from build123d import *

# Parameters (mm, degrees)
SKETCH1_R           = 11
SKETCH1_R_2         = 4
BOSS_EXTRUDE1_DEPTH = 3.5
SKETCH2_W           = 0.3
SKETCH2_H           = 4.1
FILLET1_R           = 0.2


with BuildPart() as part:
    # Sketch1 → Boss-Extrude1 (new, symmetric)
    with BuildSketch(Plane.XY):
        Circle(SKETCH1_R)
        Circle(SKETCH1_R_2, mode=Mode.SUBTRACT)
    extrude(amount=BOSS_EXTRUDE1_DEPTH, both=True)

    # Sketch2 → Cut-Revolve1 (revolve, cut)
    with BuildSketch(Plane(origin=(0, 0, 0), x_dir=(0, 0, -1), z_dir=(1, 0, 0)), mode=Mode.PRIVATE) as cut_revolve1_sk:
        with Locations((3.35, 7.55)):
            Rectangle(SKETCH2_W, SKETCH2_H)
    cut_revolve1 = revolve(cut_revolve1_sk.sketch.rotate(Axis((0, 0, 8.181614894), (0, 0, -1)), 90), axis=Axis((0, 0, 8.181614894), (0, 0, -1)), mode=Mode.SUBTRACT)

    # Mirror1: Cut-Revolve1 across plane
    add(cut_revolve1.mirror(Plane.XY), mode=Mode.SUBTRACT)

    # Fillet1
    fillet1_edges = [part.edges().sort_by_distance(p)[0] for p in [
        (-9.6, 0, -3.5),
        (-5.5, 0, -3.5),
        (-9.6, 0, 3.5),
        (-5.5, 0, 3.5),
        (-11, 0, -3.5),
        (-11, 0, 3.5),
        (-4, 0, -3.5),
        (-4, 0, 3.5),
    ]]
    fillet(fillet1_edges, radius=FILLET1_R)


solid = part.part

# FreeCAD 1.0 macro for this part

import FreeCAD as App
import Part
import Sketcher
from FreeCAD import Vector


def edges_at(feature, points):
    """Names of the edges that pass closest to the given points."""
    edges = feature.Shape.Edges
    near = lambda p: min(range(len(edges)), key=lambda i: edges[i].distToShape(Part.Vertex(*p))[0])
    return sorted({f"Edge{near(p) + 1}" for p in points})

doc = App.newDocument("Part")
body = doc.addObject("PartDesign::Body", "Body")

sketch1 = body.newObject("Sketcher::SketchObject", "Sketch")
sketch1.AttachmentSupport = (doc.getObject("XY_Plane"), [""])
sketch1.MapMode = "FlatFace"
sketch1.addGeometry([
    Part.Circle(Vector(0, 0, 0), Vector(0, 0, 1), 11),
    Part.Circle(Vector(0, 0, 0), Vector(0, 0, 1), 4),
], False)
sketch1.addConstraint([
    Sketcher.Constraint("Coincident", 0, 3, -1, 1),
    Sketcher.Constraint("Coincident", 1, 3, -1, 1),
    Sketcher.Constraint("Diameter", 0, 22.0),
    Sketcher.Constraint("Diameter", 1, 8.0),
])
pad1 = body.newObject("PartDesign::Pad", "Pad")
pad1.Profile = sketch1
pad1.Length = 7
pad1.Midplane = True

sketch2 = body.newObject("Sketcher::SketchObject", "Sketch001")
sketch2.AttachmentSupport = (doc.getObject("YZ_Plane"), [""])
sketch2.MapMode = "FlatFace"
sketch2.addGeometry([
    Part.LineSegment(Vector(9.6, -3.2, 0), Vector(5.5, -3.2, 0)),
    Part.LineSegment(Vector(5.5, -3.2, 0), Vector(5.5, -3.5, 0)),
    Part.LineSegment(Vector(5.5, -3.5, 0), Vector(9.6, -3.5, 0)),
    Part.LineSegment(Vector(9.6, -3.5, 0), Vector(9.6, -3.2, 0)),
], False)
sketch2.addConstraint([
    Sketcher.Constraint("Coincident", 0, 2, 1, 1),
    Sketcher.Constraint("Coincident", 1, 2, 2, 1),
    Sketcher.Constraint("Coincident", 2, 2, 3, 1),
    Sketcher.Constraint("Coincident", 3, 2, 0, 1),
    Sketcher.Constraint("Horizontal", 0),
    Sketcher.Constraint("Vertical", 1),
    Sketcher.Constraint("Horizontal", 2),
    Sketcher.Constraint("Vertical", 3),
    Sketcher.Constraint("DistanceX", 0, 2, 0, 1, 4.1),
    Sketcher.Constraint("DistanceY", 1, 2, 1, 1, 0.3),
    Sketcher.Constraint("DistanceX", -1, 1, 0, 2, 5.5),
    Sketcher.Constraint("DistanceY", 0, 2, -1, 1, 3.2),
])
groove = body.newObject("PartDesign::Groove", "Groove")
groove.Profile = sketch2
groove.ReferenceAxis = (sketch2, ["V_Axis"])
groove.Angle = 360
doc.recompute()

mirrored = body.newObject("PartDesign::Mirrored", "Mirrored")
mirrored.Originals = [groove]
mirrored.MirrorPlane = (doc.getObject("XY_Plane"), [""])
body.Tip = mirrored
doc.recompute()

fillet = body.newObject("PartDesign::Fillet", "Fillet")
fillet.Base = (mirrored, edges_at(mirrored, [
    (-9.6, 0, -3.5),
    (-5.5, 0, -3.5),
    (-9.6, 0, 3.5),
    (-5.5, 0, 3.5),
    (-11, 0, -3.5),
    (-11, 0, 3.5),
    (-4, 0, -3.5),
    (-4, 0, 3.5),
]))
fillet.Radius = 0.2

doc.recompute()
